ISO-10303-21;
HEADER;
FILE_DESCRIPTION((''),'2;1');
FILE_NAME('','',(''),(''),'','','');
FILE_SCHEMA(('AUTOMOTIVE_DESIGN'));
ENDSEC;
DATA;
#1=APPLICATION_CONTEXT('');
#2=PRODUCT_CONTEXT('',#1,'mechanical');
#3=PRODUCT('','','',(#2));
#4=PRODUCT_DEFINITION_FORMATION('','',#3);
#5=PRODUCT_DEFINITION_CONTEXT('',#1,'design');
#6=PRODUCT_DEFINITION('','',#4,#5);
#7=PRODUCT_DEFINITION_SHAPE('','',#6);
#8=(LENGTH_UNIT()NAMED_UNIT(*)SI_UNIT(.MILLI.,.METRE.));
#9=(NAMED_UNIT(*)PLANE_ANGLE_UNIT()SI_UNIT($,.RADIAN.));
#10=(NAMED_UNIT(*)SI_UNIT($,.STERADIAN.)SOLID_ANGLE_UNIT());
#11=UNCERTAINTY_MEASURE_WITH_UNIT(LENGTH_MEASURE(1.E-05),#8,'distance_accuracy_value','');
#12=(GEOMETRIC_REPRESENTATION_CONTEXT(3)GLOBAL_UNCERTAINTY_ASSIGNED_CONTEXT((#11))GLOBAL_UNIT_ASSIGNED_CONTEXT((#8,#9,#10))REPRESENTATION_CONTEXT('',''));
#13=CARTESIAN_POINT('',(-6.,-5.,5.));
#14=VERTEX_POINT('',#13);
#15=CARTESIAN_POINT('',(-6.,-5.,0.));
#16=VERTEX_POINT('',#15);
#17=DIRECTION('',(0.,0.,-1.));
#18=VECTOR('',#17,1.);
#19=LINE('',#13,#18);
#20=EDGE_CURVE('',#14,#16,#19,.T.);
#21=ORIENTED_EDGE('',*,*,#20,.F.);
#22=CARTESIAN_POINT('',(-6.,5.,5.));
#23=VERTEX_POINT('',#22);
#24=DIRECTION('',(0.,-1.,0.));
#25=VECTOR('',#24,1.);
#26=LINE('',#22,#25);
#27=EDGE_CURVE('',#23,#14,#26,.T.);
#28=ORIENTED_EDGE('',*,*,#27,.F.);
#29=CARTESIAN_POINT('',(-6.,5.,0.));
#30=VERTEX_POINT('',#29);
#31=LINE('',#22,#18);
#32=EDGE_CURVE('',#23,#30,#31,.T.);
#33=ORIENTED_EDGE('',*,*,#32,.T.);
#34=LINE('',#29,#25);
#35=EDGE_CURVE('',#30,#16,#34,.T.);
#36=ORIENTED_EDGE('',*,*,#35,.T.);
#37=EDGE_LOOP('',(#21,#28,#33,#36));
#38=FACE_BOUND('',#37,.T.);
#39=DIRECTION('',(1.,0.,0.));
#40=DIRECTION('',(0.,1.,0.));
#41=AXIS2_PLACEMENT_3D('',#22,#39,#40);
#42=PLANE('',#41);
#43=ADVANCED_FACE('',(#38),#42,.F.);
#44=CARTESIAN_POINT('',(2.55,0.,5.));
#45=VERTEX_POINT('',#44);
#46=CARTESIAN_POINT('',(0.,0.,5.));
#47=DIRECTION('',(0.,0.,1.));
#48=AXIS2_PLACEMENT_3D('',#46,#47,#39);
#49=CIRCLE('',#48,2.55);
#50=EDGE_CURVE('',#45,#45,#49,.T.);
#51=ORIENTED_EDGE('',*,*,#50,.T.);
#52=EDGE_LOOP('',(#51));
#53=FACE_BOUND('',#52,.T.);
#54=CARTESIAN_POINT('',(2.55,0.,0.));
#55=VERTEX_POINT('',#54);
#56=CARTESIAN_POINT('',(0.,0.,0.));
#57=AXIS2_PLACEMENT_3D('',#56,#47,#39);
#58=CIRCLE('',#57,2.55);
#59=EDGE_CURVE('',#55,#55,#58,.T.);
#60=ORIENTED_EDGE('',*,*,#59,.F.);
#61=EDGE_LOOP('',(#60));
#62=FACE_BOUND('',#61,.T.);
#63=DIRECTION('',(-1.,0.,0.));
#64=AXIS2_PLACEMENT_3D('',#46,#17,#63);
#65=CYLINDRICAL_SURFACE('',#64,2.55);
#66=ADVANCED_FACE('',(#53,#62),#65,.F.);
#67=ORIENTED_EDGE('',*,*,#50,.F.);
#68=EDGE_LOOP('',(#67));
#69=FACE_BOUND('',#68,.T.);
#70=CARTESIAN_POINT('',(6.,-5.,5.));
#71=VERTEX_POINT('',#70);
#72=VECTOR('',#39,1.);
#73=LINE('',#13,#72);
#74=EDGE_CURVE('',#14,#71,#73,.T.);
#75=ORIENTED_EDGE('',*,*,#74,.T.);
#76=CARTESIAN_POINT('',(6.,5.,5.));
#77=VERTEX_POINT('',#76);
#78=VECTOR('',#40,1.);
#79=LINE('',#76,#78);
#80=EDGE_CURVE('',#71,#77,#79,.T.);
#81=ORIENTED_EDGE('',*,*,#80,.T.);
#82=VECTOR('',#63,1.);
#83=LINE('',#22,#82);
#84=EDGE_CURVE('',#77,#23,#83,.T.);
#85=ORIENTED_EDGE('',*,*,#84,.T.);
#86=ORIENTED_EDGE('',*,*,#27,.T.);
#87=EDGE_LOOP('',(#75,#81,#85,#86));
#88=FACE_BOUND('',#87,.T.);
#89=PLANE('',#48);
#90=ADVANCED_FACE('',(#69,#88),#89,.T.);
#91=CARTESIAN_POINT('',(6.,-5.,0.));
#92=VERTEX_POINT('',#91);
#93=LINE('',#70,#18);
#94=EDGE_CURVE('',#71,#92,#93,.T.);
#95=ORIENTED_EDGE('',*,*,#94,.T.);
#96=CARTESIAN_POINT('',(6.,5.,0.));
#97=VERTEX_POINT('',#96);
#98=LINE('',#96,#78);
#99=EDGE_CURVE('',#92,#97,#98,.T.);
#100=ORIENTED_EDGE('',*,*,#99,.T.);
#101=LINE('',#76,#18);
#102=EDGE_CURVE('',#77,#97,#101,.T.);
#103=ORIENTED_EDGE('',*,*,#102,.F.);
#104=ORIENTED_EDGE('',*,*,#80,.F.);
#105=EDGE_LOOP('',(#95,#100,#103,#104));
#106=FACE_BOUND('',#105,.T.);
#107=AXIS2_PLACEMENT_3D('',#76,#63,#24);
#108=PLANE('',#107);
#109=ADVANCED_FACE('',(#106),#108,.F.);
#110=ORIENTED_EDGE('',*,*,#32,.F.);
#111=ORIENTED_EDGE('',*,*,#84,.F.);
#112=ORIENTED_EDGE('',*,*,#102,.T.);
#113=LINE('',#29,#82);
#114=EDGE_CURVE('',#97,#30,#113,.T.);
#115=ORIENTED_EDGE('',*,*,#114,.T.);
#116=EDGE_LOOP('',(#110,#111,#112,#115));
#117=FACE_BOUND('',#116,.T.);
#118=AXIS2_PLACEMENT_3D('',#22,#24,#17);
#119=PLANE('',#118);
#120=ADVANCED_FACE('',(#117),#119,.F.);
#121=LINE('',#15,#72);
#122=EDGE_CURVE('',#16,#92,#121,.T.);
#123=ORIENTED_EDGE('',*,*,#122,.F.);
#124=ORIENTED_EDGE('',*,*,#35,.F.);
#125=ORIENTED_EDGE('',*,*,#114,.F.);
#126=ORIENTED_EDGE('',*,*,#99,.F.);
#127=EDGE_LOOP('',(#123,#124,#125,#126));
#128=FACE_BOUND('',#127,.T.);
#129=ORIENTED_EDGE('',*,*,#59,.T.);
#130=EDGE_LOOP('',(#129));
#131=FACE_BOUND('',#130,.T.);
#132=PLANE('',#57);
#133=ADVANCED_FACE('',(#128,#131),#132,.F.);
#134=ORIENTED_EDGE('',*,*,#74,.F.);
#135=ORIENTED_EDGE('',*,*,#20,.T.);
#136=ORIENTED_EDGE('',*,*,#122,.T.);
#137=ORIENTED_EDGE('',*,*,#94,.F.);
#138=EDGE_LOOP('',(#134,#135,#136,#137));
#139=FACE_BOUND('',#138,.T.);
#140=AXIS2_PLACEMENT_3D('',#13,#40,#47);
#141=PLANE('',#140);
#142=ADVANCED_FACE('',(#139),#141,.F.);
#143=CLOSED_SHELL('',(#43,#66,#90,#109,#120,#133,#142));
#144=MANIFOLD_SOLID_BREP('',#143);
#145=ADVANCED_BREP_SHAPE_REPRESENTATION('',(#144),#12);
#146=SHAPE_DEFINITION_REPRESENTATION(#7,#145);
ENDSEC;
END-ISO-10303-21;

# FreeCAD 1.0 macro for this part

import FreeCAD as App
import Part
import Sketcher

V = App.Vector


def add_polygon(sketch, points):
    """Adds a closed chain of lines whose ends are joined by coincident constraints."""
    first, n = sketch.GeometryCount, len(points)
    for a, b in zip(points, points[1:] + points[:1]):
        sketch.addGeometry(Part.LineSegment(App.Vector(*a, 0), App.Vector(*b, 0)), False)
    for i in range(n):
        sketch.addConstraint(Sketcher.Constraint("Coincident", first + i, 2, first + (i + 1) % n, 1))

doc = App.newDocument("Part")
body = doc.addObject("PartDesign::Body", "Body")

# Sketch on XY plane
sketch1 = body.newObject("Sketcher::SketchObject", "Sketch")
sketch1.AttachmentSupport = (doc.getObject("XY_Plane"), [""])
sketch1.MapMode = "FlatFace"
add_polygon(sketch1, [(-6, 5), (-6, -5), (6, -5), (6, 5)])  # lines 0-3
sketch1.addGeometry(Part.Circle(V(0, 0, 0), V(0, 0, 1), 2.5), False)  # 4
sketch1.addConstraint(Sketcher.Constraint("Vertical", 0))
sketch1.addConstraint(Sketcher.Constraint("Horizontal", 1))
sketch1.addConstraint(Sketcher.Constraint("Vertical", 2))
sketch1.addConstraint(Sketcher.Constraint("Horizontal", 3))
sketch1.addConstraint(Sketcher.Constraint("Coincident", 4, 3, -1, 1))
sketch1.addConstraint(Sketcher.Constraint("Symmetric", 0, 2, 2, 2, -1, 1))
sketch1.addConstraint(Sketcher.Constraint("Diameter", 4, 5.1))
sketch1.addConstraint(Sketcher.Constraint("DistanceX", 1, 1, 1, 2, 12.0))
sketch1.addConstraint(Sketcher.Constraint("DistanceY", 0, 2, 0, 1, 10.0))
pad1 = body.newObject("PartDesign::Pad", "Pad")
pad1.Profile = sketch1
pad1.Length = 5

doc.recompute()
